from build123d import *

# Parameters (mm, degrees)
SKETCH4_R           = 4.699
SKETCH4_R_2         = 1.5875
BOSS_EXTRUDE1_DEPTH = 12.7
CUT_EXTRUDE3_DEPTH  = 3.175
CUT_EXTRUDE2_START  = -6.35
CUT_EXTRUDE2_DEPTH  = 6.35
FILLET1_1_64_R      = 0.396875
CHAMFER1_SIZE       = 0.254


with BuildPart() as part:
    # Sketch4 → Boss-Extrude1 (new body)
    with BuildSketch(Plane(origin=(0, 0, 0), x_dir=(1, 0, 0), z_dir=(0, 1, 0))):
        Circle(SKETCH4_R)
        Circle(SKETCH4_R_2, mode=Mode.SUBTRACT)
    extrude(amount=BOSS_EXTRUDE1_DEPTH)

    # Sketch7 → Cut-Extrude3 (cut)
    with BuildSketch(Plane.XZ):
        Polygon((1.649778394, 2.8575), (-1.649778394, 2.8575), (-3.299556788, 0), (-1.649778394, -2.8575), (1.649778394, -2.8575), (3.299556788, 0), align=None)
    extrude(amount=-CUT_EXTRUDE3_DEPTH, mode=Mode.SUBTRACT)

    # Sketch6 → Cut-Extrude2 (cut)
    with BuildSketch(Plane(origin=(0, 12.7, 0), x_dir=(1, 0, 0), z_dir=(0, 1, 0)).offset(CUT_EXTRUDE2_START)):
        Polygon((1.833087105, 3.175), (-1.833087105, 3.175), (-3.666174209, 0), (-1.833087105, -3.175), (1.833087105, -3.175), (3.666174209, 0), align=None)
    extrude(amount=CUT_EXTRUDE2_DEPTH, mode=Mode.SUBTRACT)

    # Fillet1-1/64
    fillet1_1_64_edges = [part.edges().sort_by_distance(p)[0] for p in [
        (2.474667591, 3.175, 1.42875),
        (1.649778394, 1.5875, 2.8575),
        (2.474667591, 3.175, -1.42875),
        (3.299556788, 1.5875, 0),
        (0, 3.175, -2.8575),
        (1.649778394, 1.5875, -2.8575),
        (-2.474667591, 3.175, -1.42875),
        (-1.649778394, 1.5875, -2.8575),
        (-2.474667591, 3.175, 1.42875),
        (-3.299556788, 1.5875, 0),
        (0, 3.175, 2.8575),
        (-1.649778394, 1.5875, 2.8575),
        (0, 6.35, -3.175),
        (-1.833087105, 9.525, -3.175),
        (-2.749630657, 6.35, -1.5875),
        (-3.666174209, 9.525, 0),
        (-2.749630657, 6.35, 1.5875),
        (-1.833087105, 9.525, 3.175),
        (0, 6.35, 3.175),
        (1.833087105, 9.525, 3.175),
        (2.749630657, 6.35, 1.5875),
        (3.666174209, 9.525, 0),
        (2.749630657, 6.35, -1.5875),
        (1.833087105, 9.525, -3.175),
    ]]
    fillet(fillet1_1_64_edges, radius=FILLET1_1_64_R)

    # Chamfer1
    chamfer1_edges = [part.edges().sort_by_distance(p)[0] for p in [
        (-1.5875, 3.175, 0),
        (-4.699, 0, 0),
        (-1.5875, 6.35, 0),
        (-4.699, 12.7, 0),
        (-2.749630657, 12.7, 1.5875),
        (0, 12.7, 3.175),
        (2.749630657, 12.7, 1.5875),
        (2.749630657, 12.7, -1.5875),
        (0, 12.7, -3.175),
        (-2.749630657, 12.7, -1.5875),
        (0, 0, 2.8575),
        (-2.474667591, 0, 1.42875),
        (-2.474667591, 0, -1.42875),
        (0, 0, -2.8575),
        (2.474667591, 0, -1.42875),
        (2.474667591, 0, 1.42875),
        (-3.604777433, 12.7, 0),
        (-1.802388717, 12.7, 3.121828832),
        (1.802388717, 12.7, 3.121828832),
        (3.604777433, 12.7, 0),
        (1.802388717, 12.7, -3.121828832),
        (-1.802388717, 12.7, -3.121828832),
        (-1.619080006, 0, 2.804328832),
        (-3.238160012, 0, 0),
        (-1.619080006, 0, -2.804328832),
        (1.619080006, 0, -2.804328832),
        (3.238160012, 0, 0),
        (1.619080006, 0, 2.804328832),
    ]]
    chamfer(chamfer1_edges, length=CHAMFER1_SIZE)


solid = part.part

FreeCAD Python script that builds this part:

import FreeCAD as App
import Part
import Sketcher
Q = App.Units.Quantity


def edges_at(feature, points):
    """Names of the edges that pass closest to the given points."""
    edges = feature.Shape.Edges
    near = lambda p: min(range(len(edges)), key=lambda i: edges[i].distToShape(Part.Vertex(*p))[0])
    return sorted({f"Edge{near(p) + 1}" for p in points})

doc = App.newDocument("Part")
body = doc.addObject("PartDesign::Body", "Body")

# Sketch on XZ plane
sketch1 = body.newObject("Sketcher::SketchObject", "Sketch")
sketch1.AttachmentSupport = (doc.getObject("XZ_Plane"), [""])
sketch1.MapMode = "FlatFace"
sketch1.addGeometry([
    Part.Circle(App.Vector(0, 0, 0), App.Vector(0, 0, 1), 4.7),
    Part.Circle(App.Vector(0, 0, 0), App.Vector(0, 0, 1), 1.6),
], False)
sketch1.addConstraint([
    Sketcher.Constraint("Coincident", 0, 3, -1, 1),
    Sketcher.Constraint("Coincident", 1, 3, -1, 1),
    Sketcher.Constraint("Diameter", 0, Q("0.37 in")),
    Sketcher.Constraint("Diameter", 1, Q("0.125 in")),
])
pad1 = body.newObject("PartDesign::Pad", "Pad")
pad1.Profile = sketch1
pad1.Length = Q("0.5 in")
pad1.Reversed = True

# Sketch on XZ plane
sketch2 = body.newObject("Sketcher::SketchObject", "Sketch001")
sketch2.AttachmentSupport = (doc.getObject("XZ_Plane"), [""])
sketch2.MapMode = "FlatFace"
sketch2.addGeometry([
    Part.LineSegment(App.Vector(1.6, 2.9, 0), App.Vector(-1.6, 2.9, 0)),  # 0
    Part.LineSegment(App.Vector(-1.6, 2.9, 0), App.Vector(-3.3, 0, 0)),  # 1
    Part.LineSegment(App.Vector(-3.3, 0, 0), App.Vector(-1.6, -2.9, 0)),  # 2
    Part.LineSegment(App.Vector(-1.6, -2.9, 0), App.Vector(1.6, -2.9, 0)),  # 3
    Part.LineSegment(App.Vector(1.6, -2.9, 0), App.Vector(3.3, 0, 0)),  # 4
    Part.LineSegment(App.Vector(3.3, 0, 0), App.Vector(1.6, 2.9, 0)),  # 5
], False)
sketch2.addConstraint([
    Sketcher.Constraint("Coincident", 0, 2, 1, 1),
    Sketcher.Constraint("Coincident", 1, 2, 2, 1),
    Sketcher.Constraint("Coincident", 2, 2, 3, 1),
    Sketcher.Constraint("Coincident", 3, 2, 4, 1),
    Sketcher.Constraint("Coincident", 4, 2, 5, 1),
    Sketcher.Constraint("Coincident", 5, 2, 0, 1),
    Sketcher.Constraint("Horizontal", 0),
    Sketcher.Constraint("Horizontal", 3),
    Sketcher.Constraint("Symmetric", 0, 2, 3, 2, -1, 1),
    Sketcher.Constraint("Symmetric", 1, 2, 4, 2, -1, 1),
    Sketcher.Constraint("PointOnObject", 1, 2, -1),
    Sketcher.Constraint("Parallel", 2, 5),
    Sketcher.Constraint("Vertical", 0, 2, 2, 2),
    Sketcher.Constraint("Angle", 1, Q("-120 deg")),
    Sketcher.Constraint("DistanceY", 2, 2, 0, 2, Q("0.225 in")),
    Sketcher.Constraint("DistanceX", 0, 2, 0, 1, 3.299557),
])
pocket1 = body.newObject("PartDesign::Pocket", "Pocket")
pocket1.Profile = sketch2
pocket1.Length = Q("0.125 in")

# Sketch on XZ plane
sketch3 = body.newObject("Sketcher::SketchObject", "Sketch002")
sketch3.AttachmentSupport = (doc.getObject("XZ_Plane"), [""])
sketch3.MapMode = "FlatFace"
sketch3.AttachmentOffset = App.Placement(App.Vector(0, 0, -0.25 * 25.4), App.Rotation())
sketch3.addGeometry([
    Part.LineSegment(App.Vector(1.8, -3.2, 0), App.Vector(-1.8, -3.2, 0)),  # 0
    Part.LineSegment(App.Vector(-1.8, -3.2, 0), App.Vector(-3.7, 0, 0)),  # 1
    Part.LineSegment(App.Vector(-3.7, 0, 0), App.Vector(-1.8, 3.2, 0)),  # 2
    Part.LineSegment(App.Vector(-1.8, 3.2, 0), App.Vector(1.8, 3.2, 0)),  # 3
    Part.LineSegment(App.Vector(1.8, 3.2, 0), App.Vector(3.7, 0, 0)),  # 4
    Part.LineSegment(App.Vector(3.7, 0, 0), App.Vector(1.8, -3.2, 0)),  # 5
], False)
sketch3.addConstraint([
    Sketcher.Constraint("Coincident", 0, 2, 1, 1),
    Sketcher.Constraint("Coincident", 1, 2, 2, 1),
    Sketcher.Constraint("Coincident", 2, 2, 3, 1),
    Sketcher.Constraint("Coincident", 3, 2, 4, 1),
    Sketcher.Constraint("Coincident", 4, 2, 5, 1),
    Sketcher.Constraint("Coincident", 5, 2, 0, 1),
    Sketcher.Constraint("Horizontal", 0),
    Sketcher.Constraint("Horizontal", 3),
    Sketcher.Constraint("Symmetric", 0, 2, 3, 2, -1, 1),
    Sketcher.Constraint("Symmetric", 1, 2, 4, 2, -1, 1),
    Sketcher.Constraint("PointOnObject", 1, 2, -1),
    Sketcher.Constraint("Parallel", 2, 5),
    Sketcher.Constraint("Vertical", 0, 2, 2, 2),
    Sketcher.Constraint("Angle", 1, Q("120 deg")),
    Sketcher.Constraint("DistanceY", 0, 2, 2, 2, Q("0.25 in")),
    Sketcher.Constraint("DistanceX", 0, 2, 0, 1, 3.666174),
])
pocket2 = body.newObject("PartDesign::Pocket", "Pocket001")
pocket2.Profile = sketch3
pocket2.Length = Q("0.25 in")
doc.recompute()

fillet = body.newObject("PartDesign::Fillet", "Fillet")
fillet.Base = (pocket2, edges_at(pocket2, [
    (2.475, 3.175, 1.429),
    (1.65, 1.587, 2.857),
    (2.475, 3.175, -1.429),
    (3.3, 1.587, 0),
    (0, 3.175, -2.857),
    (1.65, 1.587, -2.857),
    (-2.475, 3.175, -1.429),
    (-1.65, 1.587, -2.857),
    (-2.475, 3.175, 1.429),
    (-3.3, 1.587, 0),
    (0, 3.175, 2.857),
    (-1.65, 1.587, 2.857),
    (0, 6.35, -3.175),
    (-1.833, 9.525, -3.175),
    (-2.75, 6.35, -1.587),
    (-3.666, 9.525, 0),
    (-2.75, 6.35, 1.587),
    (-1.833, 9.525, 3.175),
    (0, 6.35, 3.175),
    (1.833, 9.525, 3.175),
    (2.75, 6.35, 1.587),
    (3.666, 9.525, 0),
    (2.75, 6.35, -1.587),
    (1.833, 9.525, -3.175),
]))
fillet.Radius = Q("0.015625 in")
doc.recompute()

chamfer = body.newObject("PartDesign::Chamfer", "Chamfer")
chamfer.Base = (fillet, edges_at(fillet, [
    (-1.587, 3.175, 0),
    (-4.699, 0, 0),
    (-1.587, 6.35, 0),
    (-4.699, 12.7, 0),
    (-2.75, 12.7, 1.587),
    (0, 12.7, 3.175),
    (2.75, 12.7, 1.587),
    (2.75, 12.7, -1.587),
    (0, 12.7, -3.175),
    (-2.75, 12.7, -1.587),
    (0, 0, 2.857),
    (-2.475, 0, 1.429),
    (-2.475, 0, -1.429),
    (0, 0, -2.857),
    (2.475, 0, -1.429),
    (2.475, 0, 1.429),
    (-3.605, 12.7, 0),
    (-1.802, 12.7, 3.122),
    (1.802, 12.7, 3.122),
    (3.605, 12.7, 0),
    (1.802, 12.7, -3.122),
    (-1.802, 12.7, -3.122),
    (-1.619, 0, 2.804),
    (-3.238, 0, 0),
    (-1.619, 0, -2.804),
    (1.619, 0, -2.804),
    (3.238, 0, 0),
    (1.619, 0, 2.804),
]))
chamfer.Size = Q("0.01 in")

doc.recompute()
